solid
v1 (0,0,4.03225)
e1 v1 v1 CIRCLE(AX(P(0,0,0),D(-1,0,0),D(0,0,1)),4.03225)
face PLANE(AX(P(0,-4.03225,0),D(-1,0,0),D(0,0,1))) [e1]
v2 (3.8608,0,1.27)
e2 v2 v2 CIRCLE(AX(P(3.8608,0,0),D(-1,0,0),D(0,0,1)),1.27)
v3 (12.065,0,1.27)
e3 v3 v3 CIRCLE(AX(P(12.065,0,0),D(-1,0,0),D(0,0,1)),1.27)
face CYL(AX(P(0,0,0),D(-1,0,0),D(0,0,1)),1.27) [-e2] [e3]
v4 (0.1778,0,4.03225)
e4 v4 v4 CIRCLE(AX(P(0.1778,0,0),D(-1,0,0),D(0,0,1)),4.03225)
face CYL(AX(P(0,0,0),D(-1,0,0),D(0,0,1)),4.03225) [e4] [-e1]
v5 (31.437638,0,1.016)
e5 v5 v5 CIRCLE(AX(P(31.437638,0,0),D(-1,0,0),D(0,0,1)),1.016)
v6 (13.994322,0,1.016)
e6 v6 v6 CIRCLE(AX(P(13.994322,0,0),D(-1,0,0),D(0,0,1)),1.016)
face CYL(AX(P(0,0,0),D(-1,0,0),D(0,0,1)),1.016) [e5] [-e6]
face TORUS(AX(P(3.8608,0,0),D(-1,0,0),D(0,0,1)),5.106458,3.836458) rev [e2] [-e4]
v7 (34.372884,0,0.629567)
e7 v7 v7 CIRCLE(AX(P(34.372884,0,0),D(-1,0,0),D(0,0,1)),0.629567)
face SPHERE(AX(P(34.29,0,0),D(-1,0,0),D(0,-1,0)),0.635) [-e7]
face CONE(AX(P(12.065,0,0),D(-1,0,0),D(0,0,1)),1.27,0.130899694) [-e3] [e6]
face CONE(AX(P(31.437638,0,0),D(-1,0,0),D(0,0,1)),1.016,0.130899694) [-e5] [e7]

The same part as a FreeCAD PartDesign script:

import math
import FreeCAD as App
import Part
import Sketcher
Q = App.Units.Quantity

doc = App.newDocument("Part")
params = doc.addObject("Spreadsheet::Sheet", "Params")
for row, (alias, value) in enumerate([
    ("sketch1_radius", "0.025 in"),
    ("sketch1_width", "0.007 in"),
    ("sketch1_width2", "0.323 in"),
    ("sketch1_width3", "1.375 in"),
    ("revolution_angle", "360 deg"),
], start=1):
    params.set(f"A{row}", alias)
    params.set(f"B{row}", "=" + value)
    params.setAlias(f"B{row}", alias)

body = doc.addObject("PartDesign::Body", "Body")

sketch1 = doc.addObject("Sketcher::SketchObject", "Sketch")
body.addObject(sketch1)
sketch1.AttachmentSupport = (doc.XY_Plane, [""])
sketch1.MapMode = "FlatFace"
sketch1.addGeometry(Part.LineSegment(App.Vector(0, 0, 0), App.Vector(0, -4.03, 0)), False)
sketch1.addGeometry(Part.LineSegment(App.Vector(0, -4.03, 0), App.Vector(0.18, -4.03, 0)), False)
sketch1.addGeometry(Part.ArcOfCircle(Part.Circle(App.Vector(3.86, -5.11, 0), App.Vector(0, 0, 1), 3.84), math.radians(90), math.radians(164)), False)
sketch1.addGeometry(Part.LineSegment(App.Vector(3.86, -1.27, 0), App.Vector(12.06, -1.27, 0)), False)
sketch1.addGeometry(Part.LineSegment(App.Vector(12.06, -1.27, 0), App.Vector(13.99, -1.02, 0)), False)
sketch1.addGeometry(Part.LineSegment(App.Vector(13.99, -1.02, 0), App.Vector(31.44, -1.02, 0)), False)
sketch1.addGeometry(Part.LineSegment(App.Vector(31.44, -1.02, 0), App.Vector(34.37, -0.63, 0)), False)
sketch1.addGeometry(Part.ArcOfCircle(Part.Circle(App.Vector(34.29, 0, 0), App.Vector(0, 0, 1), 0.63), math.radians(-83), math.radians(0)), False)
sketch1.addGeometry(Part.LineSegment(App.Vector(34.92, 0, 0), App.Vector(0, 0, 0)), False)
sketch1.addConstraint(Sketcher.Constraint("Coincident", 0, 2, 1, 1))
sketch1.addConstraint(Sketcher.Constraint("Coincident", 1, 2, 2, 2))
sketch1.addConstraint(Sketcher.Constraint("Tangent", 2, 1, 3, 1))
sketch1.addConstraint(Sketcher.Constraint("Coincident", 3, 2, 4, 1))
sketch1.addConstraint(Sketcher.Constraint("Coincident", 4, 2, 5, 1))
sketch1.addConstraint(Sketcher.Constraint("Coincident", 5, 2, 6, 1))
sketch1.addConstraint(Sketcher.Constraint("Tangent", 6, 2, 7, 1))
sketch1.addConstraint(Sketcher.Constraint("Coincident", 7, 2, 8, 1))
sketch1.addConstraint(Sketcher.Constraint("Coincident", 8, 2, 0, 1))
sketch1.addConstraint(Sketcher.Constraint("Vertical", 0))
sketch1.addConstraint(Sketcher.Constraint("Horizontal", 1))
sketch1.addConstraint(Sketcher.Constraint("Horizontal", 3))
sketch1.addConstraint(Sketcher.Constraint("Horizontal", 5))
sketch1.addConstraint(Sketcher.Constraint("Horizontal", 8))
sketch1.addConstraint(Sketcher.Constraint("Coincident", 8, 2, -1, 1))
sketch1.addConstraint(Sketcher.Constraint("PointOnObject", 7, 3, -1))
sketch1.addConstraint(Sketcher.Constraint("Parallel", 4, 6))
sketch1.addConstraint(Sketcher.Constraint("Radius", 7, Q("0.025 in")))
sketch1.addConstraint(Sketcher.Constraint("Angle", 4, Q("7.5 deg")))
sketch1.addConstraint(Sketcher.Constraint("DistanceX", 3, 2, 7, 2, Q("0.9 in")))
sketch1.addConstraint(Sketcher.Constraint("DistanceX", 1, 1, 1, 2, Q("0.007 in")))
sketch1.addConstraint(Sketcher.Constraint("DistanceX", 3, 1, 3, 2, Q("0.323 in")))
sketch1.addConstraint(Sketcher.Constraint("DistanceX", 8, 2, 8, 1, Q("1.375 in")))
sketch1.addConstraint(Sketcher.Constraint("DistanceY", 2, 1, -1, 1, Q("0.05 in")))
sketch1.addConstraint(Sketcher.Constraint("DistanceY", 4, 2, -1, 1, Q("0.04 in")))
sketch1.addConstraint(Sketcher.Constraint("Radius", 2, Q("3.836458 mm")))
sketch1.setExpression("Constraints[17]", "Params.sketch1_radius")
sketch1.setExpression("Constraints[20]", "Params.sketch1_width")
sketch1.setExpression("Constraints[21]", "Params.sketch1_width2")
sketch1.setExpression("Constraints[22]", "Params.sketch1_width3")
revolution = doc.addObject("PartDesign::Revolution", "Revolution")
body.addObject(revolution)
revolution.Profile = sketch1
revolution.ReferenceAxis = (sketch1, ["H_Axis"])
revolution.setExpression("Angle", "Params.revolution_angle")

doc.recompute()
